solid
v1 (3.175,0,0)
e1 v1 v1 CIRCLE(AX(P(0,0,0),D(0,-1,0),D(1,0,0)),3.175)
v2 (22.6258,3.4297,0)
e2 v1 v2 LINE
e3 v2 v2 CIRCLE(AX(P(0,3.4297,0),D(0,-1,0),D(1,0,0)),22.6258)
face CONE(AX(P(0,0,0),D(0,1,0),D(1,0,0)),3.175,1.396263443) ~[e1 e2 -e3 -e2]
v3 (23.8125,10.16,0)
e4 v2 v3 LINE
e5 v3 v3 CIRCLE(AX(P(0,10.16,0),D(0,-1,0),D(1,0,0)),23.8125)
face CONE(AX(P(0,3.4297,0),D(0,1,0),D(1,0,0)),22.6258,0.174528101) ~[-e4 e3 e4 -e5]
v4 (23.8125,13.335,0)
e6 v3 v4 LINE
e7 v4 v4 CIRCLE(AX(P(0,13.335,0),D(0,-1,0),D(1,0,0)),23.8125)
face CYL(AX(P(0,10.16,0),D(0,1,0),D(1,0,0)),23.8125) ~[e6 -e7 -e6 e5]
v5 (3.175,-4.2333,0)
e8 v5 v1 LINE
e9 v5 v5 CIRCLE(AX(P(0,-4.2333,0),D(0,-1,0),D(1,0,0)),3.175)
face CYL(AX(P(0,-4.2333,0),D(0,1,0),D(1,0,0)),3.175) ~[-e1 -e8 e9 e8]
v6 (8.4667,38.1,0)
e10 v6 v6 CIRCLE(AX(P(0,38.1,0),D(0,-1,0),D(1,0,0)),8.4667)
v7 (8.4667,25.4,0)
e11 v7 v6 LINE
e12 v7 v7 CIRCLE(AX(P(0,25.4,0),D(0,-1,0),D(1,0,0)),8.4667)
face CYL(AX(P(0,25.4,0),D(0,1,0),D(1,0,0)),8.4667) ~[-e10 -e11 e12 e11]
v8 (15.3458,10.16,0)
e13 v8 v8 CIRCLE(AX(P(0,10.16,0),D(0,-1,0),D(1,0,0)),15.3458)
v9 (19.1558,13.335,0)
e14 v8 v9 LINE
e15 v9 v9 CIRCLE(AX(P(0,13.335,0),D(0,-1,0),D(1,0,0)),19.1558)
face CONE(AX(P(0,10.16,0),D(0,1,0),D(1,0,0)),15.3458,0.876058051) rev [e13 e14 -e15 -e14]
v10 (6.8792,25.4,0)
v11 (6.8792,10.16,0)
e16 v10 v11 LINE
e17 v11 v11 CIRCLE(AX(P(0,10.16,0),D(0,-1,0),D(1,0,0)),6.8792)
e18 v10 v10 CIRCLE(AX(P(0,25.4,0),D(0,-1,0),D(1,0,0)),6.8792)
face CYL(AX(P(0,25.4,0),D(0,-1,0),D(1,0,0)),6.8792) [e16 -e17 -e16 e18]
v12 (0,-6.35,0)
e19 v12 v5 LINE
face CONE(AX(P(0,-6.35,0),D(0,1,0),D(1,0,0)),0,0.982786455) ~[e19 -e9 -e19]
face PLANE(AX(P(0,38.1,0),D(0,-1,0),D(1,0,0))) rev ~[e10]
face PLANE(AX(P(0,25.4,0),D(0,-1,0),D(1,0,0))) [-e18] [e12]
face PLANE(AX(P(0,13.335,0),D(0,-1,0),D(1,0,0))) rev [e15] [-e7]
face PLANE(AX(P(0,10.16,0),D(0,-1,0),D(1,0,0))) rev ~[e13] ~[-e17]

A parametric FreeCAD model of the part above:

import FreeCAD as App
import Part
import Sketcher
Q = App.Units.Quantity

doc = App.newDocument("Part")
body = doc.addObject("PartDesign::Body", "Body")

# Sketch on XY plane
sketch1 = body.newObject("Sketcher::SketchObject", "Sketch")
sketch1.AttachmentSupport = (doc.getObject("XY_Plane"), [""])
sketch1.MapMode = "FlatFace"
sketch1.addGeometry([
    Part.LineSegment(App.Vector(0, 38.1, 0), App.Vector(0, -6.35, 0)),  # 0
    Part.LineSegment(App.Vector(0, -6.35, 0), App.Vector(3.175, -4.2333, 0)),  # 1
    Part.LineSegment(App.Vector(3.175, -4.2333, 0), App.Vector(3.175, 0, 0)),  # 2
    Part.LineSegment(App.Vector(3.175, 0, 0), App.Vector(22.6258, 3.4297, 0)),  # 3
    Part.LineSegment(App.Vector(22.6258, 3.4297, 0), App.Vector(23.8125, 10.16, 0)),  # 4
    Part.LineSegment(App.Vector(23.8125, 10.16, 0), App.Vector(23.8125, 13.335, 0)),  # 5
    Part.LineSegment(App.Vector(23.8125, 13.335, 0), App.Vector(19.1558, 13.335, 0)),  # 6
    Part.LineSegment(App.Vector(19.1558, 13.335, 0), App.Vector(15.3458, 10.16, 0)),  # 7
    Part.LineSegment(App.Vector(15.3458, 10.16, 0), App.Vector(6.8792, 10.16, 0)),  # 8
    Part.LineSegment(App.Vector(6.8792, 10.16, 0), App.Vector(6.8792, 25.4, 0)),  # 9
    Part.LineSegment(App.Vector(6.8792, 25.4, 0), App.Vector(8.4667, 25.4, 0)),  # 10
    Part.LineSegment(App.Vector(8.4667, 25.4, 0), App.Vector(8.4667, 38.1, 0)),  # 11
    Part.LineSegment(App.Vector(8.4667, 38.1, 0), App.Vector(0, 38.1, 0)),  # 12
], False)
sketch1.addConstraint([
    Sketcher.Constraint("Coincident", 0, 2, 1, 1),
    Sketcher.Constraint("Coincident", 1, 2, 2, 1),
    Sketcher.Constraint("Coincident", 2, 2, 3, 1),
    Sketcher.Constraint("Coincident", 3, 2, 4, 1),
    Sketcher.Constraint("Coincident", 4, 2, 5, 1),
    Sketcher.Constraint("Coincident", 5, 2, 6, 1),
    Sketcher.Constraint("Coincident", 6, 2, 7, 1),
    Sketcher.Constraint("Coincident", 7, 2, 8, 1),
    Sketcher.Constraint("Coincident", 8, 2, 9, 1),
    Sketcher.Constraint("Coincident", 9, 2, 10, 1),
    Sketcher.Constraint("Coincident", 10, 2, 11, 1),
    Sketcher.Constraint("Coincident", 11, 2, 12, 1),
    Sketcher.Constraint("Coincident", 12, 2, 0, 1),
    Sketcher.Constraint("Vertical", 0),
    Sketcher.Constraint("Vertical", 2),
    Sketcher.Constraint("Vertical", 5),
    Sketcher.Constraint("Horizontal", 6),
    Sketcher.Constraint("Horizontal", 8),
    Sketcher.Constraint("Vertical", 9),
    Sketcher.Constraint("Horizontal", 10),
    Sketcher.Constraint("Vertical", 11),
    Sketcher.Constraint("Horizontal", 12),
    Sketcher.Constraint("PointOnObject", 0, 2, -2),
    Sketcher.Constraint("PointOnObject", 2, 2, -1),
    Sketcher.Constraint("Horizontal", 4, 2, 7, 2),
    Sketcher.Constraint("Equal", 8, 12),
    Sketcher.Constraint("DistanceY", 11, 1, 11, 2, Q("0.5 in")),
    Sketcher.Constraint("Angle", 3, Q("10 deg")),
    Sketcher.Constraint("DistanceY", 0, 2, 0, 1, Q("1.75 in")),
    Sketcher.Constraint("DistanceY", -1, 1, 4, 2, Q("0.4 in")),
    Sketcher.Constraint("DistanceX", 10, 1, 10, 2, Q("0.0625 in")),
    Sketcher.Constraint("DistanceY", 5, 1, 5, 2, Q("0.125 in")),
    Sketcher.Constraint("DistanceX", 7, 2, 6, 2, Q("0.15 in")),
    Sketcher.Constraint("DistanceY", 9, 1, 9, 2, Q("0.6 in")),
    Sketcher.Constraint("DistanceX", -1, 1, 1, 2, Q("0.125 in")),
    Sketcher.Constraint("DistanceX", -1, 1, 4, 2, Q("0.9375 in")),
    Sketcher.Constraint("Angle", 4, Q("80.0003 deg")),
    Sketcher.Constraint("DistanceX", 8, 2, 8, 1, 8.4666),
    Sketcher.Constraint("DistanceY", 2, 1, 2, 2, 4.2333),
])
revolution = body.newObject("PartDesign::Revolution", "Revolution")
revolution.Profile = sketch1
revolution.ReferenceAxis = (sketch1, ["V_Axis"])
revolution.Angle = 360

doc.recompute()
